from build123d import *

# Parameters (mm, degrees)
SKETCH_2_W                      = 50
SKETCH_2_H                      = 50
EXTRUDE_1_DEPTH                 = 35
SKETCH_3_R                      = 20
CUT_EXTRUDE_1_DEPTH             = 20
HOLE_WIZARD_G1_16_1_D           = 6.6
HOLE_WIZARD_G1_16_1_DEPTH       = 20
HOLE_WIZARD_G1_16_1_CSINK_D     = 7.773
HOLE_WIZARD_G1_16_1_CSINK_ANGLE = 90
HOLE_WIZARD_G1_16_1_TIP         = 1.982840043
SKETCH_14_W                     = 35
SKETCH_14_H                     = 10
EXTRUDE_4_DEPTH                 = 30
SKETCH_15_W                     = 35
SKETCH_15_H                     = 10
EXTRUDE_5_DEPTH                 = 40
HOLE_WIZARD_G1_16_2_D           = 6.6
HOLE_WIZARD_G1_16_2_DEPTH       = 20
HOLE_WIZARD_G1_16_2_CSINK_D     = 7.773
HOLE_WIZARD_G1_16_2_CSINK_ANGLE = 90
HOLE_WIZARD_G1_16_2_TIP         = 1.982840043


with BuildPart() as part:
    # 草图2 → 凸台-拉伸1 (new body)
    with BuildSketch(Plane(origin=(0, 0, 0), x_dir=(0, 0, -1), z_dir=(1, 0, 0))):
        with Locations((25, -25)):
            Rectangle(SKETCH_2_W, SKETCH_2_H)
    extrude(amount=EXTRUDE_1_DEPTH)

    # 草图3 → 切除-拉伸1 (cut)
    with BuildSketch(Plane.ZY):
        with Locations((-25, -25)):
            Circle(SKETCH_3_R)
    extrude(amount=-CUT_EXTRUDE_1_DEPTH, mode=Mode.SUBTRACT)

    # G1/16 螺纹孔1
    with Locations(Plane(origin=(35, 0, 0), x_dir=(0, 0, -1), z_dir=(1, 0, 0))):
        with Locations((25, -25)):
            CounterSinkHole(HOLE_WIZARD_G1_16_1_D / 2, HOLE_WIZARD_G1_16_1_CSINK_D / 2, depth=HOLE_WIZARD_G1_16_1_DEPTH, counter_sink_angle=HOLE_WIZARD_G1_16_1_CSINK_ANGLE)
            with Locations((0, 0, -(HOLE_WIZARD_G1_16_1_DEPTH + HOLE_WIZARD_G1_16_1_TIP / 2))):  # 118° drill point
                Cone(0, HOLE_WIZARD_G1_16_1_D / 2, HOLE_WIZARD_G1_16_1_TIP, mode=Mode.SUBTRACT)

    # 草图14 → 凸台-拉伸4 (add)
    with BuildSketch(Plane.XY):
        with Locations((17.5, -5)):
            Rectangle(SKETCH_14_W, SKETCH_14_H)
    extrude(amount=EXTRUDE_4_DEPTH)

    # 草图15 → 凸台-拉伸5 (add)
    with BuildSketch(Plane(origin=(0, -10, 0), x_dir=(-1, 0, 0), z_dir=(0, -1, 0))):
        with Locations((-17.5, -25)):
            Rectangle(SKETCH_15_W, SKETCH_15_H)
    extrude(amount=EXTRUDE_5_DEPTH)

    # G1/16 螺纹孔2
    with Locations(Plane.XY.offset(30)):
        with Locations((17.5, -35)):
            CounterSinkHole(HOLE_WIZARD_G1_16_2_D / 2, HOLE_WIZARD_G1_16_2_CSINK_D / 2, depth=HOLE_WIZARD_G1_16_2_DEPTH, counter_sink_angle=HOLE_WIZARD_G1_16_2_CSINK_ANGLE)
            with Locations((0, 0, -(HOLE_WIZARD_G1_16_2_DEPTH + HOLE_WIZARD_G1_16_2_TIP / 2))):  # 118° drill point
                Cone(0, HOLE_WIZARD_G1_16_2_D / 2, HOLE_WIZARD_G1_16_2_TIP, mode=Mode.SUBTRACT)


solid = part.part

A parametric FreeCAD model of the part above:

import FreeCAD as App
import Part
import Sketcher

V = App.Vector
Q = App.Units.Quantity

doc = App.newDocument("Part")
body = doc.addObject("PartDesign::Body", "Body")

# Sketch on YZ plane
sketch1 = doc.addObject("Sketcher::SketchObject", "Sketch")
body.addObject(sketch1)
sketch1.AttachmentSupport = (doc.YZ_Plane, [""])
sketch1.MapMode = "FlatFace"
sketch1.addGeometry(Part.LineSegment(V(0, 0, 0), V(-50, 0, 0)), False)
sketch1.addGeometry(Part.LineSegment(V(-50, 0, 0), V(-50, -50, 0)), False)
sketch1.addGeometry(Part.LineSegment(V(-50, -50, 0), V(0, -50, 0)), False)
sketch1.addGeometry(Part.LineSegment(V(0, -50, 0), V(0, 0, 0)), False)
sketch1.addConstraint(Sketcher.Constraint("Coincident", 0, 2, 1, 1))
sketch1.addConstraint(Sketcher.Constraint("Coincident", 1, 2, 2, 1))
sketch1.addConstraint(Sketcher.Constraint("Coincident", 2, 2, 3, 1))
sketch1.addConstraint(Sketcher.Constraint("Coincident", 3, 2, 0, 1))
sketch1.addConstraint(Sketcher.Constraint("Horizontal", 0))
sketch1.addConstraint(Sketcher.Constraint("Vertical", 1))
sketch1.addConstraint(Sketcher.Constraint("Horizontal", 2))
sketch1.addConstraint(Sketcher.Constraint("Vertical", 3))
sketch1.addConstraint(Sketcher.Constraint("Coincident", 3, 2, -1, 1))
sketch1.addConstraint(Sketcher.Constraint("Equal", 2, 1))
sketch1.addConstraint(Sketcher.Constraint("DistanceX", 0, 2, 0, 1, Q("50 mm")))
pad1 = doc.addObject("PartDesign::Pad", "Pad")
body.addObject(pad1)
pad1.Profile = sketch1
pad1.Length = 35

# Sketch on YZ plane
sketch2 = doc.addObject("Sketcher::SketchObject", "Sketch001")
body.addObject(sketch2)
sketch2.AttachmentSupport = (doc.YZ_Plane, [""])
sketch2.MapMode = "FlatFace"
sketch2.addGeometry(Part.Circle(V(-25, -25, 0), V(0, 0, 1), 20), False)
sketch2.addConstraint(Sketcher.Constraint("Diameter", 0, Q("40 mm")))
sketch2.addConstraint(Sketcher.Constraint("DistanceX", 0, 3, -1, 1, Q("25 mm")))
sketch2.addConstraint(Sketcher.Constraint("DistanceY", 0, 3, -1, 1, Q("25 mm")))
pocket1 = doc.addObject("PartDesign::Pocket", "Pocket")
body.addObject(pocket1)
pocket1.Profile = sketch2
pocket1.Length = 20
pocket1.Reversed = True

# Sketch on YZ plane
sketch3 = doc.addObject("Sketcher::SketchObject", "Sketch002")
body.addObject(sketch3)
sketch3.AttachmentSupport = (doc.YZ_Plane, [""])
sketch3.MapMode = "FlatFace"
sketch3.AttachmentOffset = App.Placement(V(0, 0, 35), App.Rotation())
sketch3.addGeometry(Part.Circle(V(-25, -25, 0), V(0, 0, 1), 3.3), False)
sketch3.addConstraint(Sketcher.Constraint("Diameter", 0, Q("6.6 mm")))
sketch3.addConstraint(Sketcher.Constraint("DistanceX", 0, 3, -1, 1, Q("25 mm")))
sketch3.addConstraint(Sketcher.Constraint("DistanceY", 0, 3, -1, 1, Q("25 mm")))
doc.recompute()
hole = doc.addObject("PartDesign::Hole", "Hole")
body.addObject(hole)
hole.Profile = sketch3
hole.ThreadType = "None"
hole.Diameter = 6.6
hole.DepthType = "Dimension"
hole.Depth = 20
hole.DrillPoint = "Angled"
hole.DrillPointAngle = 118
hole.HoleCutType = "Countersink"
hole.HoleCutDiameter = 7.773
hole.HoleCutCountersinkAngle = 90

# Sketch on XY plane
sketch4 = doc.addObject("Sketcher::SketchObject", "Sketch003")
body.addObject(sketch4)
sketch4.AttachmentSupport = (doc.XY_Plane, [""])
sketch4.MapMode = "FlatFace"
sketch4.addGeometry(Part.LineSegment(V(0, 0, 0), V(0, -10, 0)), False)
sketch4.addGeometry(Part.LineSegment(V(0, -10, 0), V(35, -10, 0)), False)
sketch4.addGeometry(Part.LineSegment(V(35, -10, 0), V(35, 0, 0)), False)
sketch4.addGeometry(Part.LineSegment(V(35, 0, 0), V(0, 0, 0)), False)
sketch4.addConstraint(Sketcher.Constraint("Coincident", 0, 2, 1, 1))
sketch4.addConstraint(Sketcher.Constraint("Coincident", 1, 2, 2, 1))
sketch4.addConstraint(Sketcher.Constraint("Coincident", 2, 2, 3, 1))
sketch4.addConstraint(Sketcher.Constraint("Coincident", 3, 2, 0, 1))
sketch4.addConstraint(Sketcher.Constraint("Vertical", 0))
sketch4.addConstraint(Sketcher.Constraint("Horizontal", 1))
sketch4.addConstraint(Sketcher.Constraint("Vertical", 2))
sketch4.addConstraint(Sketcher.Constraint("Horizontal", 3))
sketch4.addConstraint(Sketcher.Constraint("Coincident", 3, 2, -1, 1))
sketch4.addConstraint(Sketcher.Constraint("DistanceX", 1, 1, 1, 2, Q("35 mm")))
sketch4.addConstraint(Sketcher.Constraint("DistanceY", 0, 2, 0, 1, Q("10 mm")))
pad2 = doc.addObject("PartDesign::Pad", "Pad001")
body.addObject(pad2)
pad2.Profile = sketch4
pad2.Length = 30

# Sketch on XZ plane
sketch5 = doc.addObject("Sketcher::SketchObject", "Sketch004")
body.addObject(sketch5)
sketch5.AttachmentSupport = (doc.XZ_Plane, [""])
sketch5.MapMode = "FlatFace"
sketch5.AttachmentOffset = App.Placement(V(0, 0, 10), App.Rotation())
sketch5.addGeometry(Part.LineSegment(V(35, 20, 0), V(35, 30, 0)), False)
sketch5.addGeometry(Part.LineSegment(V(35, 30, 0), V(0, 30, 0)), False)
sketch5.addGeometry(Part.LineSegment(V(0, 30, 0), V(0, 20, 0)), False)
sketch5.addGeometry(Part.LineSegment(V(0, 20, 0), V(35, 20, 0)), False)
sketch5.addConstraint(Sketcher.Constraint("Coincident", 0, 2, 1, 1))
sketch5.addConstraint(Sketcher.Constraint("Coincident", 1, 2, 2, 1))
sketch5.addConstraint(Sketcher.Constraint("Coincident", 2, 2, 3, 1))
sketch5.addConstraint(Sketcher.Constraint("Coincident", 3, 2, 0, 1))
sketch5.addConstraint(Sketcher.Constraint("Vertical", 0))
sketch5.addConstraint(Sketcher.Constraint("Horizontal", 1))
sketch5.addConstraint(Sketcher.Constraint("Vertical", 2))
sketch5.addConstraint(Sketcher.Constraint("Horizontal", 3))
sketch5.addConstraint(Sketcher.Constraint("PointOnObject", 1, 2, -2))
sketch5.addConstraint(Sketcher.Constraint("DistanceX", 1, 2, 1, 1, Q("35 mm")))
sketch5.addConstraint(Sketcher.Constraint("DistanceY", 0, 1, 0, 2, Q("10 mm")))
sketch5.addConstraint(Sketcher.Constraint("DistanceY", -1, 1, 0, 2, Q("30 mm")))
pad3 = doc.addObject("PartDesign::Pad", "Pad002")
body.addObject(pad3)
pad3.Profile = sketch5
pad3.Length = 40

# Sketch on XY plane
sketch6 = doc.addObject("Sketcher::SketchObject", "Sketch005")
body.addObject(sketch6)
sketch6.AttachmentSupport = (doc.XY_Plane, [""])
sketch6.MapMode = "FlatFace"
sketch6.AttachmentOffset = App.Placement(V(0, 0, 30), App.Rotation())
sketch6.addGeometry(Part.Circle(V(17.5, -35, 0), V(0, 0, 1), 3.3), False)
sketch6.addConstraint(Sketcher.Constraint("Diameter", 0, Q("6.6 mm")))
sketch6.addConstraint(Sketcher.Constraint("DistanceY", 0, 3, -1, 1, Q("35 mm")))
sketch6.addConstraint(Sketcher.Constraint("DistanceX", -1, 1, 0, 3, Q("17.5 mm")))
doc.recompute()
hole2 = doc.addObject("PartDesign::Hole", "Hole001")
body.addObject(hole2)
hole2.Profile = sketch6
hole2.ThreadType = "None"
hole2.Diameter = 6.6
hole2.DepthType = "Dimension"
hole2.Depth = 20
hole2.DrillPoint = "Angled"
hole2.DrillPointAngle = 118
hole2.HoleCutType = "Countersink"
hole2.HoleCutDiameter = 7.773
hole2.HoleCutCountersinkAngle = 90

doc.recompute()
